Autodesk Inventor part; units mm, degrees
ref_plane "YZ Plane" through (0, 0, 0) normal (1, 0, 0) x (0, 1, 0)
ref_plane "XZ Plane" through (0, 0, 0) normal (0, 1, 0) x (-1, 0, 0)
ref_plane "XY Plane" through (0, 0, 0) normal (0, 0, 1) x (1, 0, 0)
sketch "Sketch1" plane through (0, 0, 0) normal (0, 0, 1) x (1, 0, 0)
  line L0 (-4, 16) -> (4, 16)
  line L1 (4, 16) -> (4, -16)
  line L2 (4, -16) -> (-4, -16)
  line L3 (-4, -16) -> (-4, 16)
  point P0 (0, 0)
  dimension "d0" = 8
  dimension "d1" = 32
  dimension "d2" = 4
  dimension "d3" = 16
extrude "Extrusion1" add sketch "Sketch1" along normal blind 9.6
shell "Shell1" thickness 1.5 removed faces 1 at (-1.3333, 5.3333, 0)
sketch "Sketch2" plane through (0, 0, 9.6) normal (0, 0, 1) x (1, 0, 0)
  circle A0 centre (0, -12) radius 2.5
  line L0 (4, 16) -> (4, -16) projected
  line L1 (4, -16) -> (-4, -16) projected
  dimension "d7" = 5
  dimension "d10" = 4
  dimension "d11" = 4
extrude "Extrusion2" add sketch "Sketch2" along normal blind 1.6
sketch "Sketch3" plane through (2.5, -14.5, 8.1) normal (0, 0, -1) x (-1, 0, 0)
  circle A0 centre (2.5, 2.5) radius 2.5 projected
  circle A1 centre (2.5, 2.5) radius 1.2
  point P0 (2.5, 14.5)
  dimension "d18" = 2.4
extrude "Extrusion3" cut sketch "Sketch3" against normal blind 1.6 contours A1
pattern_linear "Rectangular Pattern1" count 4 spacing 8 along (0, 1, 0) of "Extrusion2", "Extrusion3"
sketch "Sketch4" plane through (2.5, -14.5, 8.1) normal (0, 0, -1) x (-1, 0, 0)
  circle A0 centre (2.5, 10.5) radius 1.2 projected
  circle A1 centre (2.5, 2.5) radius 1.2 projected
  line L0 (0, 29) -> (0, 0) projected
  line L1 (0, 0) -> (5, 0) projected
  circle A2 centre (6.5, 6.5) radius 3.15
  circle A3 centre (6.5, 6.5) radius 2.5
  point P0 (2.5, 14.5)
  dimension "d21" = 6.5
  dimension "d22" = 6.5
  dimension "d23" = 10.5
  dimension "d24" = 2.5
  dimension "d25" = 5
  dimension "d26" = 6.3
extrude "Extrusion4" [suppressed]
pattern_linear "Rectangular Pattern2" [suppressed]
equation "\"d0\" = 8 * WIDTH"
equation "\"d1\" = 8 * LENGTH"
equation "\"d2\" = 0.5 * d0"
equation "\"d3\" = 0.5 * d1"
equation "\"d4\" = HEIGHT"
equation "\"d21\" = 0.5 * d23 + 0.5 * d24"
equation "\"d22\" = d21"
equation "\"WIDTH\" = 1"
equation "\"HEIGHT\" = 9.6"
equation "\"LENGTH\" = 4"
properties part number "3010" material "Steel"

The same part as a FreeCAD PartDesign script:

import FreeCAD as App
import Part
import Sketcher


def faces_at(feature, points):
    """Names of the faces that lie closest to the given points."""
    faces = feature.Shape.Faces
    near = lambda p: min(range(len(faces)), key=lambda i: faces[i].distToShape(Part.Vertex(*p))[0])
    return sorted({f"Face{near(p) + 1}" for p in points})

doc = App.newDocument("Part")
params = doc.addObject("Spreadsheet::Sheet", "Params")
for row, (alias, value) in enumerate([
    ("sketch1_width", "8 mm"),
    ("sketch1_height", "32 mm"),
    ("pad1_length", "9.6 mm"),
    ("thickness_wall", "1.5 mm"),
    ("sketch2_diameter", "5 mm"),
    ("pad2_length", "1.6 mm"),
    ("sketch3_diameter", "2.4 mm"),
    ("pocket1_length", "1.6 mm"),
    ("linearpattern_pitch", "8 mm"),
], start=1):
    params.set(f"A{row}", alias)
    params.set(f"B{row}", "=" + value)
    params.setAlias(f"B{row}", alias)

body = doc.addObject("PartDesign::Body", "Body")

sketch1 = body.newObject("Sketcher::SketchObject", "Sketch")
sketch1.AttachmentSupport = (doc.getObject("XY_Plane"), [""])
sketch1.MapMode = "FlatFace"
sketch1.addGeometry(Part.LineSegment(App.Vector(4, 16, 0), App.Vector(-4, 16, 0)), False)
sketch1.addGeometry(Part.LineSegment(App.Vector(-4, 16, 0), App.Vector(-4, -16, 0)), False)
sketch1.addGeometry(Part.LineSegment(App.Vector(-4, -16, 0), App.Vector(4, -16, 0)), False)
sketch1.addGeometry(Part.LineSegment(App.Vector(4, -16, 0), App.Vector(4, 16, 0)), False)
sketch1.addConstraint(Sketcher.Constraint("Coincident", 0, 2, 1, 1))
sketch1.addConstraint(Sketcher.Constraint("Coincident", 1, 2, 2, 1))
sketch1.addConstraint(Sketcher.Constraint("Coincident", 2, 2, 3, 1))
sketch1.addConstraint(Sketcher.Constraint("Coincident", 3, 2, 0, 1))
sketch1.addConstraint(Sketcher.Constraint("Horizontal", 0))
sketch1.addConstraint(Sketcher.Constraint("Vertical", 1))
sketch1.addConstraint(Sketcher.Constraint("Horizontal", 2))
sketch1.addConstraint(Sketcher.Constraint("Vertical", 3))
sketch1.addConstraint(Sketcher.Constraint("Symmetric", 0, 2, 2, 2, -1, 1))
sketch1.addConstraint(Sketcher.Constraint("DistanceX", 0, 2, 0, 1, 8.0))
sketch1.addConstraint(Sketcher.Constraint("DistanceY", 1, 2, 1, 1, 32.0))
sketch1.setExpression("Constraints[9]", "Params.sketch1_width")
sketch1.setExpression("Constraints[10]", "Params.sketch1_height")
pad1 = body.newObject("PartDesign::Pad", "Pad")
pad1.Profile = sketch1
pad1.setExpression("Length", "Params.pad1_length")
doc.recompute()

thickness = body.newObject("PartDesign::Thickness", "Thickness")
thickness.Base = (pad1, faces_at(pad1, [(-1.333, 5.333, 0)]))
thickness.setExpression("Value", "Params.thickness_wall")
thickness.Reversed = True
thickness.Join = "Intersection"

sketch2 = body.newObject("Sketcher::SketchObject", "Sketch001")
sketch2.AttachmentSupport = (doc.getObject("XY_Plane"), [""])
sketch2.MapMode = "FlatFace"
sketch2.AttachmentOffset = App.Placement(App.Vector(0, 0, 9.6), App.Rotation())
sketch2.addGeometry(Part.Circle(App.Vector(0, -12, 0), App.Vector(0, 0, 1), 2.5), False)
sketch2.addConstraint(Sketcher.Constraint("PointOnObject", 0, 3, -2))
sketch2.addConstraint(Sketcher.Constraint("Diameter", 0, 5.0))
sketch2.addConstraint(Sketcher.Constraint("DistanceY", 0, 3, -1, 1, 12.0))
sketch2.setExpression("Constraints[1]", "Params.sketch2_diameter")
pad2 = body.newObject("PartDesign::Pad", "Pad001")
pad2.Profile = sketch2
pad2.setExpression("Length", "Params.pad2_length")

sketch3 = body.newObject("Sketcher::SketchObject", "Sketch002")
sketch3.AttachmentSupport = (doc.getObject("XY_Plane"), [""])
sketch3.MapMode = "FlatFace"
sketch3.AttachmentOffset = App.Placement(App.Vector(0, 0, 8.1), App.Rotation())
sketch3.addGeometry(Part.Circle(App.Vector(0, -12, 0), App.Vector(0, 0, 1), 1.2), False)
sketch3.addConstraint(Sketcher.Constraint("PointOnObject", 0, 3, -2))
sketch3.addConstraint(Sketcher.Constraint("Diameter", 0, 2.4))
sketch3.addConstraint(Sketcher.Constraint("DistanceY", 0, 3, -1, 1, 12.0))
sketch3.setExpression("Constraints[1]", "Params.sketch3_diameter")
pocket1 = body.newObject("PartDesign::Pocket", "Pocket")
pocket1.Profile = sketch3
pocket1.setExpression("Length", "Params.pocket1_length")
pocket1.Reversed = True
doc.recompute()

linearpattern = body.newObject("PartDesign::LinearPattern", "LinearPattern")
linearpattern.Originals = [pad2, pocket1]
linearpattern.Direction = (doc.getObject("Y_Axis"), [""])
linearpattern.Mode = "offset"
linearpattern.setExpression("Offset", "Params.linearpattern_pitch")
linearpattern.Occurrences = 4
body.Tip = linearpattern

doc.recompute()
